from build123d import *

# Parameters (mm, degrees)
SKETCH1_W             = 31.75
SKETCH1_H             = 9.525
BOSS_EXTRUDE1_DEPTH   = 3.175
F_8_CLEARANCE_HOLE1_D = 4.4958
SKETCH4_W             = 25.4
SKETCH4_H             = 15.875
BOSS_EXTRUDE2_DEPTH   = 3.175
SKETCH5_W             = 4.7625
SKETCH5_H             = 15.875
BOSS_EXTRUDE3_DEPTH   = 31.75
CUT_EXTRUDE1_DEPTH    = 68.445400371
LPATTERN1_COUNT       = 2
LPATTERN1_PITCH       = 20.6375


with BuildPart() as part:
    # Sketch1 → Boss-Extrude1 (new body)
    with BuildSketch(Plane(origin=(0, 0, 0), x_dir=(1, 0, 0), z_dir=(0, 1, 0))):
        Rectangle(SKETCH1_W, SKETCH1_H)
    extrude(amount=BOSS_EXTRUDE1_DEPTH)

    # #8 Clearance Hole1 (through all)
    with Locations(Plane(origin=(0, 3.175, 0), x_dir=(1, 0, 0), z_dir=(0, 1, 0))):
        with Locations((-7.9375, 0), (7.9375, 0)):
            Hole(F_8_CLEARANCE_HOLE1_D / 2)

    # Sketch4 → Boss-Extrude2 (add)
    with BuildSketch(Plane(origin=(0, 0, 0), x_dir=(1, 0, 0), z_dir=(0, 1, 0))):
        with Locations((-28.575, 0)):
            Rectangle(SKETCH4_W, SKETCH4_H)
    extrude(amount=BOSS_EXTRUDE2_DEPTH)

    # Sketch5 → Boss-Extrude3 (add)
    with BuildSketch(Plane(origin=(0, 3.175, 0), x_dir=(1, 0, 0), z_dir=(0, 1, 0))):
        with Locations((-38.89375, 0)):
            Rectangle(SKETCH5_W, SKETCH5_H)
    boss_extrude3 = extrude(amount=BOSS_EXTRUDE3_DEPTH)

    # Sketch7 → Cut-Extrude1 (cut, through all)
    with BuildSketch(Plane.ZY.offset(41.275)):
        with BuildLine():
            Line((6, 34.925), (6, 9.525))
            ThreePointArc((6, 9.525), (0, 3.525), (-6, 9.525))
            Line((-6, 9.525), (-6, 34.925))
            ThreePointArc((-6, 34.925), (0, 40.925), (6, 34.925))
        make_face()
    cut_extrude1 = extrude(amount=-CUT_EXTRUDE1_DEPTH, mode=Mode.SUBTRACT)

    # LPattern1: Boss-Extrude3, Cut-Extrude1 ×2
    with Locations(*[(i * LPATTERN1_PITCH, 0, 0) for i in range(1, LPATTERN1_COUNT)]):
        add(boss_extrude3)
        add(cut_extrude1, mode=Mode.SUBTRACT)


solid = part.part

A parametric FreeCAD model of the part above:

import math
import FreeCAD as App
import Part
import Sketcher

V = App.Vector
Q = App.Units.Quantity

doc = App.newDocument("Part")
params = doc.addObject("Spreadsheet::Sheet", "Params")
for row, (alias, value) in enumerate([
    ("sketch1_width", "1.25 in"),
    ("sketch1_height", "0.375 in"),
    ("pad1_length", "0.125 in"),
    ("sketch2_diameter", "0.177 in"),
    ("hole_diameter", "0.177 in"),
    ("sketch3_width", "1 in"),
    ("sketch3_height", "0.625 in"),
    ("pad2_length", "0.125 in"),
    ("sketch4_width", "0.1875 in"),
    ("sketch4_height", "0.625 in"),
    ("pad3_length", "1.25 in"),
    ("sketch5_width", "1 in"),
    ("linearpattern_pitch", "0.8125 in"),
], start=1):
    params.set(f"A{row}", alias)
    params.set(f"B{row}", "=" + value)
    params.setAlias(f"B{row}", alias)

body = doc.addObject("PartDesign::Body", "Body")

# Sketch on XZ plane
sketch1 = body.newObject("Sketcher::SketchObject", "Sketch")
sketch1.AttachmentSupport = (doc.getObject("XZ_Plane"), [""])
sketch1.MapMode = "FlatFace"
sketch1.addGeometry([
    Part.LineSegment(V(-16, -5, 0), V(-16, 5, 0)),
    Part.LineSegment(V(-16, 5, 0), V(16, 5, 0)),
    Part.LineSegment(V(16, 5, 0), V(16, -5, 0)),
    Part.LineSegment(V(16, -5, 0), V(-16, -5, 0)),
], False)
sketch1.addConstraint([
    Sketcher.Constraint("Coincident", 0, 2, 1, 1),
    Sketcher.Constraint("Coincident", 1, 2, 2, 1),
    Sketcher.Constraint("Coincident", 2, 2, 3, 1),
    Sketcher.Constraint("Coincident", 3, 2, 0, 1),
    Sketcher.Constraint("Vertical", 0),
    Sketcher.Constraint("Horizontal", 1),
    Sketcher.Constraint("Vertical", 2),
    Sketcher.Constraint("Horizontal", 3),
    Sketcher.Constraint("Symmetric", 0, 2, 2, 2, -1, 1),
    Sketcher.Constraint("DistanceX", 1, 1, 1, 2, Q("1.25 in")),
    Sketcher.Constraint("DistanceY", 0, 1, 0, 2, Q("0.375 in")),
])
sketch1.setExpression("Constraints[9]", "Params.sketch1_width")
sketch1.setExpression("Constraints[10]", "Params.sketch1_height")
pad1 = body.newObject("PartDesign::Pad", "Pad")
pad1.Profile = sketch1
pad1.setExpression("Length", "Params.pad1_length")
pad1.Reversed = True

# Sketch on XZ plane
sketch2 = body.newObject("Sketcher::SketchObject", "Sketch001")
sketch2.AttachmentSupport = (doc.getObject("XZ_Plane"), [""])
sketch2.MapMode = "FlatFace"
sketch2.AttachmentOffset = App.Placement(V(0, 0, -0.125 * 25.4), App.Rotation())
sketch2.addGeometry([
    Part.Circle(V(-7.9, 0, 0), V(0, 0, 1), 2.2),
    Part.Circle(V(7.9, 0, 0), V(0, 0, 1), 2.2),
], False)
sketch2.addConstraint([
    Sketcher.Constraint("Equal", 0, 1),
    Sketcher.Constraint("Symmetric", 0, 3, 1, 3, -1, 1),
    Sketcher.Constraint("PointOnObject", 0, 3, -1),
    Sketcher.Constraint("Diameter", 0, Q("0.177 in")),
    Sketcher.Constraint("DistanceX", 0, 3, -1, 1, Q("0.3125 in")),
])
sketch2.setExpression("Constraints[3]", "Params.sketch2_diameter")
doc.recompute()
hole = body.newObject("PartDesign::Hole", "Hole")
hole.Profile = sketch2
hole.ThreadType = "None"
hole.setExpression("Diameter", "Params.hole_diameter")
hole.DepthType = "ThroughAll"
hole.Reversed = True

# Sketch on XZ plane
sketch3 = body.newObject("Sketcher::SketchObject", "Sketch002")
sketch3.AttachmentSupport = (doc.getObject("XZ_Plane"), [""])
sketch3.MapMode = "FlatFace"
sketch3.addGeometry([
    Part.LineSegment(V(-41, -8, 0), V(-41, 8, 0)),
    Part.LineSegment(V(-41, 8, 0), V(-16, 8, 0)),
    Part.LineSegment(V(-16, 8, 0), V(-16, -8, 0)),
    Part.LineSegment(V(-16, -8, 0), V(-41, -8, 0)),
], False)
sketch3.addConstraint([
    Sketcher.Constraint("Coincident", 0, 2, 1, 1),
    Sketcher.Constraint("Coincident", 1, 2, 2, 1),
    Sketcher.Constraint("Coincident", 2, 2, 3, 1),
    Sketcher.Constraint("Coincident", 3, 2, 0, 1),
    Sketcher.Constraint("Vertical", 0),
    Sketcher.Constraint("Horizontal", 1),
    Sketcher.Constraint("Vertical", 2),
    Sketcher.Constraint("Horizontal", 3),
    Sketcher.Constraint("DistanceX", 1, 1, 1, 2, Q("1 in")),
    Sketcher.Constraint("DistanceY", 0, 1, 0, 2, Q("0.625 in")),
    Sketcher.Constraint("DistanceX", 0, 2, -1, 1, Q("1.625 in")),
    Sketcher.Constraint("DistanceY", -1, 1, 0, 2, Q("0.3125 in")),
])
sketch3.setExpression("Constraints[8]", "Params.sketch3_width")
sketch3.setExpression("Constraints[9]", "Params.sketch3_height")
pad2 = body.newObject("PartDesign::Pad", "Pad001")
pad2.Profile = sketch3
pad2.setExpression("Length", "Params.pad2_length")
pad2.Reversed = True

# Sketch on XZ plane
sketch4 = body.newObject("Sketcher::SketchObject", "Sketch003")
sketch4.AttachmentSupport = (doc.getObject("XZ_Plane"), [""])
sketch4.MapMode = "FlatFace"
sketch4.AttachmentOffset = App.Placement(V(0, 0, -0.125 * 25.4), App.Rotation())
sketch4.addGeometry([
    Part.LineSegment(V(-41.3, -7.9, 0), V(-41.3, 7.9, 0)),
    Part.LineSegment(V(-41.3, 7.9, 0), V(-36.5, 7.9, 0)),
    Part.LineSegment(V(-36.5, 7.9, 0), V(-36.5, -7.9, 0)),
    Part.LineSegment(V(-36.5, -7.9, 0), V(-41.3, -7.9, 0)),
], False)
sketch4.addConstraint([
    Sketcher.Constraint("Coincident", 0, 2, 1, 1),
    Sketcher.Constraint("Coincident", 1, 2, 2, 1),
    Sketcher.Constraint("Coincident", 2, 2, 3, 1),
    Sketcher.Constraint("Coincident", 3, 2, 0, 1),
    Sketcher.Constraint("Vertical", 0),
    Sketcher.Constraint("Horizontal", 1),
    Sketcher.Constraint("Vertical", 2),
    Sketcher.Constraint("Horizontal", 3),
    Sketcher.Constraint("DistanceX", 1, 1, 1, 2, Q("0.1875 in")),
    Sketcher.Constraint("DistanceY", 0, 1, 0, 2, Q("0.625 in")),
    Sketcher.Constraint("DistanceX", 0, 2, -1, 1, Q("1.625 in")),
    Sketcher.Constraint("DistanceY", -1, 1, 0, 2, Q("0.3125 in")),
])
sketch4.setExpression("Constraints[8]", "Params.sketch4_width")
sketch4.setExpression("Constraints[9]", "Params.sketch4_height")
pad3 = body.newObject("PartDesign::Pad", "Pad002")
pad3.Profile = sketch4
pad3.setExpression("Length", "Params.pad3_length")
pad3.Reversed = True

# Sketch on YZ plane
sketch5 = body.newObject("Sketcher::SketchObject", "Sketch004")
sketch5.AttachmentSupport = (doc.getObject("YZ_Plane"), [""])
sketch5.MapMode = "FlatFace"
sketch5.AttachmentOffset = App.Placement(V(0, 0, -1.625 * 25.4), App.Rotation())
sketch5.addGeometry([
    Part.LineSegment(V(10, 6, 0), V(35, 6, 0)),
    Part.ArcOfCircle(Part.Circle(V(35, 0, 0), V(0, 0, 1), 6), math.radians(-90), math.radians(90)),
    Part.LineSegment(V(35, -6, 0), V(10, -6, 0)),
    Part.ArcOfCircle(Part.Circle(V(10, 0, 0), V(0, 0, 1), 6), math.radians(90), math.radians(270)),
], False)
sketch5.addConstraint([
    Sketcher.Constraint("Tangent", 0, 2, 1, 2),
    Sketcher.Constraint("Tangent", 1, 1, 2, 1),
    Sketcher.Constraint("Tangent", 2, 2, 3, 2),
    Sketcher.Constraint("Tangent", 3, 1, 0, 1),
    Sketcher.Constraint("Horizontal", 0),
    Sketcher.Constraint("Horizontal", 2),
    Sketcher.Constraint("PointOnObject", 1, 3, -1),
    Sketcher.Constraint("DistanceX", 0, 1, 0, 2, Q("1 in")),
    Sketcher.Constraint("Radius", 1, 6.0),
    Sketcher.Constraint("DistanceX", -1, 1, 1, 3, Q("1.375 in")),
])
sketch5.setExpression("Constraints[7]", "Params.sketch5_width")
pocket1 = body.newObject("PartDesign::Pocket", "Pocket")
pocket1.Profile = sketch5
pocket1.Type = "ThroughAll"
pocket1.Reversed = True
doc.recompute()

linearpattern = body.newObject("PartDesign::LinearPattern", "LinearPattern")
linearpattern.Originals = [pad3, pocket1]
linearpattern.Direction = (doc.getObject("X_Axis"), [""])
linearpattern.Mode = "offset"
linearpattern.setExpression("Offset", "Params.linearpattern_pitch")
linearpattern.Occurrences = 2
body.Tip = linearpattern

doc.recompute()
